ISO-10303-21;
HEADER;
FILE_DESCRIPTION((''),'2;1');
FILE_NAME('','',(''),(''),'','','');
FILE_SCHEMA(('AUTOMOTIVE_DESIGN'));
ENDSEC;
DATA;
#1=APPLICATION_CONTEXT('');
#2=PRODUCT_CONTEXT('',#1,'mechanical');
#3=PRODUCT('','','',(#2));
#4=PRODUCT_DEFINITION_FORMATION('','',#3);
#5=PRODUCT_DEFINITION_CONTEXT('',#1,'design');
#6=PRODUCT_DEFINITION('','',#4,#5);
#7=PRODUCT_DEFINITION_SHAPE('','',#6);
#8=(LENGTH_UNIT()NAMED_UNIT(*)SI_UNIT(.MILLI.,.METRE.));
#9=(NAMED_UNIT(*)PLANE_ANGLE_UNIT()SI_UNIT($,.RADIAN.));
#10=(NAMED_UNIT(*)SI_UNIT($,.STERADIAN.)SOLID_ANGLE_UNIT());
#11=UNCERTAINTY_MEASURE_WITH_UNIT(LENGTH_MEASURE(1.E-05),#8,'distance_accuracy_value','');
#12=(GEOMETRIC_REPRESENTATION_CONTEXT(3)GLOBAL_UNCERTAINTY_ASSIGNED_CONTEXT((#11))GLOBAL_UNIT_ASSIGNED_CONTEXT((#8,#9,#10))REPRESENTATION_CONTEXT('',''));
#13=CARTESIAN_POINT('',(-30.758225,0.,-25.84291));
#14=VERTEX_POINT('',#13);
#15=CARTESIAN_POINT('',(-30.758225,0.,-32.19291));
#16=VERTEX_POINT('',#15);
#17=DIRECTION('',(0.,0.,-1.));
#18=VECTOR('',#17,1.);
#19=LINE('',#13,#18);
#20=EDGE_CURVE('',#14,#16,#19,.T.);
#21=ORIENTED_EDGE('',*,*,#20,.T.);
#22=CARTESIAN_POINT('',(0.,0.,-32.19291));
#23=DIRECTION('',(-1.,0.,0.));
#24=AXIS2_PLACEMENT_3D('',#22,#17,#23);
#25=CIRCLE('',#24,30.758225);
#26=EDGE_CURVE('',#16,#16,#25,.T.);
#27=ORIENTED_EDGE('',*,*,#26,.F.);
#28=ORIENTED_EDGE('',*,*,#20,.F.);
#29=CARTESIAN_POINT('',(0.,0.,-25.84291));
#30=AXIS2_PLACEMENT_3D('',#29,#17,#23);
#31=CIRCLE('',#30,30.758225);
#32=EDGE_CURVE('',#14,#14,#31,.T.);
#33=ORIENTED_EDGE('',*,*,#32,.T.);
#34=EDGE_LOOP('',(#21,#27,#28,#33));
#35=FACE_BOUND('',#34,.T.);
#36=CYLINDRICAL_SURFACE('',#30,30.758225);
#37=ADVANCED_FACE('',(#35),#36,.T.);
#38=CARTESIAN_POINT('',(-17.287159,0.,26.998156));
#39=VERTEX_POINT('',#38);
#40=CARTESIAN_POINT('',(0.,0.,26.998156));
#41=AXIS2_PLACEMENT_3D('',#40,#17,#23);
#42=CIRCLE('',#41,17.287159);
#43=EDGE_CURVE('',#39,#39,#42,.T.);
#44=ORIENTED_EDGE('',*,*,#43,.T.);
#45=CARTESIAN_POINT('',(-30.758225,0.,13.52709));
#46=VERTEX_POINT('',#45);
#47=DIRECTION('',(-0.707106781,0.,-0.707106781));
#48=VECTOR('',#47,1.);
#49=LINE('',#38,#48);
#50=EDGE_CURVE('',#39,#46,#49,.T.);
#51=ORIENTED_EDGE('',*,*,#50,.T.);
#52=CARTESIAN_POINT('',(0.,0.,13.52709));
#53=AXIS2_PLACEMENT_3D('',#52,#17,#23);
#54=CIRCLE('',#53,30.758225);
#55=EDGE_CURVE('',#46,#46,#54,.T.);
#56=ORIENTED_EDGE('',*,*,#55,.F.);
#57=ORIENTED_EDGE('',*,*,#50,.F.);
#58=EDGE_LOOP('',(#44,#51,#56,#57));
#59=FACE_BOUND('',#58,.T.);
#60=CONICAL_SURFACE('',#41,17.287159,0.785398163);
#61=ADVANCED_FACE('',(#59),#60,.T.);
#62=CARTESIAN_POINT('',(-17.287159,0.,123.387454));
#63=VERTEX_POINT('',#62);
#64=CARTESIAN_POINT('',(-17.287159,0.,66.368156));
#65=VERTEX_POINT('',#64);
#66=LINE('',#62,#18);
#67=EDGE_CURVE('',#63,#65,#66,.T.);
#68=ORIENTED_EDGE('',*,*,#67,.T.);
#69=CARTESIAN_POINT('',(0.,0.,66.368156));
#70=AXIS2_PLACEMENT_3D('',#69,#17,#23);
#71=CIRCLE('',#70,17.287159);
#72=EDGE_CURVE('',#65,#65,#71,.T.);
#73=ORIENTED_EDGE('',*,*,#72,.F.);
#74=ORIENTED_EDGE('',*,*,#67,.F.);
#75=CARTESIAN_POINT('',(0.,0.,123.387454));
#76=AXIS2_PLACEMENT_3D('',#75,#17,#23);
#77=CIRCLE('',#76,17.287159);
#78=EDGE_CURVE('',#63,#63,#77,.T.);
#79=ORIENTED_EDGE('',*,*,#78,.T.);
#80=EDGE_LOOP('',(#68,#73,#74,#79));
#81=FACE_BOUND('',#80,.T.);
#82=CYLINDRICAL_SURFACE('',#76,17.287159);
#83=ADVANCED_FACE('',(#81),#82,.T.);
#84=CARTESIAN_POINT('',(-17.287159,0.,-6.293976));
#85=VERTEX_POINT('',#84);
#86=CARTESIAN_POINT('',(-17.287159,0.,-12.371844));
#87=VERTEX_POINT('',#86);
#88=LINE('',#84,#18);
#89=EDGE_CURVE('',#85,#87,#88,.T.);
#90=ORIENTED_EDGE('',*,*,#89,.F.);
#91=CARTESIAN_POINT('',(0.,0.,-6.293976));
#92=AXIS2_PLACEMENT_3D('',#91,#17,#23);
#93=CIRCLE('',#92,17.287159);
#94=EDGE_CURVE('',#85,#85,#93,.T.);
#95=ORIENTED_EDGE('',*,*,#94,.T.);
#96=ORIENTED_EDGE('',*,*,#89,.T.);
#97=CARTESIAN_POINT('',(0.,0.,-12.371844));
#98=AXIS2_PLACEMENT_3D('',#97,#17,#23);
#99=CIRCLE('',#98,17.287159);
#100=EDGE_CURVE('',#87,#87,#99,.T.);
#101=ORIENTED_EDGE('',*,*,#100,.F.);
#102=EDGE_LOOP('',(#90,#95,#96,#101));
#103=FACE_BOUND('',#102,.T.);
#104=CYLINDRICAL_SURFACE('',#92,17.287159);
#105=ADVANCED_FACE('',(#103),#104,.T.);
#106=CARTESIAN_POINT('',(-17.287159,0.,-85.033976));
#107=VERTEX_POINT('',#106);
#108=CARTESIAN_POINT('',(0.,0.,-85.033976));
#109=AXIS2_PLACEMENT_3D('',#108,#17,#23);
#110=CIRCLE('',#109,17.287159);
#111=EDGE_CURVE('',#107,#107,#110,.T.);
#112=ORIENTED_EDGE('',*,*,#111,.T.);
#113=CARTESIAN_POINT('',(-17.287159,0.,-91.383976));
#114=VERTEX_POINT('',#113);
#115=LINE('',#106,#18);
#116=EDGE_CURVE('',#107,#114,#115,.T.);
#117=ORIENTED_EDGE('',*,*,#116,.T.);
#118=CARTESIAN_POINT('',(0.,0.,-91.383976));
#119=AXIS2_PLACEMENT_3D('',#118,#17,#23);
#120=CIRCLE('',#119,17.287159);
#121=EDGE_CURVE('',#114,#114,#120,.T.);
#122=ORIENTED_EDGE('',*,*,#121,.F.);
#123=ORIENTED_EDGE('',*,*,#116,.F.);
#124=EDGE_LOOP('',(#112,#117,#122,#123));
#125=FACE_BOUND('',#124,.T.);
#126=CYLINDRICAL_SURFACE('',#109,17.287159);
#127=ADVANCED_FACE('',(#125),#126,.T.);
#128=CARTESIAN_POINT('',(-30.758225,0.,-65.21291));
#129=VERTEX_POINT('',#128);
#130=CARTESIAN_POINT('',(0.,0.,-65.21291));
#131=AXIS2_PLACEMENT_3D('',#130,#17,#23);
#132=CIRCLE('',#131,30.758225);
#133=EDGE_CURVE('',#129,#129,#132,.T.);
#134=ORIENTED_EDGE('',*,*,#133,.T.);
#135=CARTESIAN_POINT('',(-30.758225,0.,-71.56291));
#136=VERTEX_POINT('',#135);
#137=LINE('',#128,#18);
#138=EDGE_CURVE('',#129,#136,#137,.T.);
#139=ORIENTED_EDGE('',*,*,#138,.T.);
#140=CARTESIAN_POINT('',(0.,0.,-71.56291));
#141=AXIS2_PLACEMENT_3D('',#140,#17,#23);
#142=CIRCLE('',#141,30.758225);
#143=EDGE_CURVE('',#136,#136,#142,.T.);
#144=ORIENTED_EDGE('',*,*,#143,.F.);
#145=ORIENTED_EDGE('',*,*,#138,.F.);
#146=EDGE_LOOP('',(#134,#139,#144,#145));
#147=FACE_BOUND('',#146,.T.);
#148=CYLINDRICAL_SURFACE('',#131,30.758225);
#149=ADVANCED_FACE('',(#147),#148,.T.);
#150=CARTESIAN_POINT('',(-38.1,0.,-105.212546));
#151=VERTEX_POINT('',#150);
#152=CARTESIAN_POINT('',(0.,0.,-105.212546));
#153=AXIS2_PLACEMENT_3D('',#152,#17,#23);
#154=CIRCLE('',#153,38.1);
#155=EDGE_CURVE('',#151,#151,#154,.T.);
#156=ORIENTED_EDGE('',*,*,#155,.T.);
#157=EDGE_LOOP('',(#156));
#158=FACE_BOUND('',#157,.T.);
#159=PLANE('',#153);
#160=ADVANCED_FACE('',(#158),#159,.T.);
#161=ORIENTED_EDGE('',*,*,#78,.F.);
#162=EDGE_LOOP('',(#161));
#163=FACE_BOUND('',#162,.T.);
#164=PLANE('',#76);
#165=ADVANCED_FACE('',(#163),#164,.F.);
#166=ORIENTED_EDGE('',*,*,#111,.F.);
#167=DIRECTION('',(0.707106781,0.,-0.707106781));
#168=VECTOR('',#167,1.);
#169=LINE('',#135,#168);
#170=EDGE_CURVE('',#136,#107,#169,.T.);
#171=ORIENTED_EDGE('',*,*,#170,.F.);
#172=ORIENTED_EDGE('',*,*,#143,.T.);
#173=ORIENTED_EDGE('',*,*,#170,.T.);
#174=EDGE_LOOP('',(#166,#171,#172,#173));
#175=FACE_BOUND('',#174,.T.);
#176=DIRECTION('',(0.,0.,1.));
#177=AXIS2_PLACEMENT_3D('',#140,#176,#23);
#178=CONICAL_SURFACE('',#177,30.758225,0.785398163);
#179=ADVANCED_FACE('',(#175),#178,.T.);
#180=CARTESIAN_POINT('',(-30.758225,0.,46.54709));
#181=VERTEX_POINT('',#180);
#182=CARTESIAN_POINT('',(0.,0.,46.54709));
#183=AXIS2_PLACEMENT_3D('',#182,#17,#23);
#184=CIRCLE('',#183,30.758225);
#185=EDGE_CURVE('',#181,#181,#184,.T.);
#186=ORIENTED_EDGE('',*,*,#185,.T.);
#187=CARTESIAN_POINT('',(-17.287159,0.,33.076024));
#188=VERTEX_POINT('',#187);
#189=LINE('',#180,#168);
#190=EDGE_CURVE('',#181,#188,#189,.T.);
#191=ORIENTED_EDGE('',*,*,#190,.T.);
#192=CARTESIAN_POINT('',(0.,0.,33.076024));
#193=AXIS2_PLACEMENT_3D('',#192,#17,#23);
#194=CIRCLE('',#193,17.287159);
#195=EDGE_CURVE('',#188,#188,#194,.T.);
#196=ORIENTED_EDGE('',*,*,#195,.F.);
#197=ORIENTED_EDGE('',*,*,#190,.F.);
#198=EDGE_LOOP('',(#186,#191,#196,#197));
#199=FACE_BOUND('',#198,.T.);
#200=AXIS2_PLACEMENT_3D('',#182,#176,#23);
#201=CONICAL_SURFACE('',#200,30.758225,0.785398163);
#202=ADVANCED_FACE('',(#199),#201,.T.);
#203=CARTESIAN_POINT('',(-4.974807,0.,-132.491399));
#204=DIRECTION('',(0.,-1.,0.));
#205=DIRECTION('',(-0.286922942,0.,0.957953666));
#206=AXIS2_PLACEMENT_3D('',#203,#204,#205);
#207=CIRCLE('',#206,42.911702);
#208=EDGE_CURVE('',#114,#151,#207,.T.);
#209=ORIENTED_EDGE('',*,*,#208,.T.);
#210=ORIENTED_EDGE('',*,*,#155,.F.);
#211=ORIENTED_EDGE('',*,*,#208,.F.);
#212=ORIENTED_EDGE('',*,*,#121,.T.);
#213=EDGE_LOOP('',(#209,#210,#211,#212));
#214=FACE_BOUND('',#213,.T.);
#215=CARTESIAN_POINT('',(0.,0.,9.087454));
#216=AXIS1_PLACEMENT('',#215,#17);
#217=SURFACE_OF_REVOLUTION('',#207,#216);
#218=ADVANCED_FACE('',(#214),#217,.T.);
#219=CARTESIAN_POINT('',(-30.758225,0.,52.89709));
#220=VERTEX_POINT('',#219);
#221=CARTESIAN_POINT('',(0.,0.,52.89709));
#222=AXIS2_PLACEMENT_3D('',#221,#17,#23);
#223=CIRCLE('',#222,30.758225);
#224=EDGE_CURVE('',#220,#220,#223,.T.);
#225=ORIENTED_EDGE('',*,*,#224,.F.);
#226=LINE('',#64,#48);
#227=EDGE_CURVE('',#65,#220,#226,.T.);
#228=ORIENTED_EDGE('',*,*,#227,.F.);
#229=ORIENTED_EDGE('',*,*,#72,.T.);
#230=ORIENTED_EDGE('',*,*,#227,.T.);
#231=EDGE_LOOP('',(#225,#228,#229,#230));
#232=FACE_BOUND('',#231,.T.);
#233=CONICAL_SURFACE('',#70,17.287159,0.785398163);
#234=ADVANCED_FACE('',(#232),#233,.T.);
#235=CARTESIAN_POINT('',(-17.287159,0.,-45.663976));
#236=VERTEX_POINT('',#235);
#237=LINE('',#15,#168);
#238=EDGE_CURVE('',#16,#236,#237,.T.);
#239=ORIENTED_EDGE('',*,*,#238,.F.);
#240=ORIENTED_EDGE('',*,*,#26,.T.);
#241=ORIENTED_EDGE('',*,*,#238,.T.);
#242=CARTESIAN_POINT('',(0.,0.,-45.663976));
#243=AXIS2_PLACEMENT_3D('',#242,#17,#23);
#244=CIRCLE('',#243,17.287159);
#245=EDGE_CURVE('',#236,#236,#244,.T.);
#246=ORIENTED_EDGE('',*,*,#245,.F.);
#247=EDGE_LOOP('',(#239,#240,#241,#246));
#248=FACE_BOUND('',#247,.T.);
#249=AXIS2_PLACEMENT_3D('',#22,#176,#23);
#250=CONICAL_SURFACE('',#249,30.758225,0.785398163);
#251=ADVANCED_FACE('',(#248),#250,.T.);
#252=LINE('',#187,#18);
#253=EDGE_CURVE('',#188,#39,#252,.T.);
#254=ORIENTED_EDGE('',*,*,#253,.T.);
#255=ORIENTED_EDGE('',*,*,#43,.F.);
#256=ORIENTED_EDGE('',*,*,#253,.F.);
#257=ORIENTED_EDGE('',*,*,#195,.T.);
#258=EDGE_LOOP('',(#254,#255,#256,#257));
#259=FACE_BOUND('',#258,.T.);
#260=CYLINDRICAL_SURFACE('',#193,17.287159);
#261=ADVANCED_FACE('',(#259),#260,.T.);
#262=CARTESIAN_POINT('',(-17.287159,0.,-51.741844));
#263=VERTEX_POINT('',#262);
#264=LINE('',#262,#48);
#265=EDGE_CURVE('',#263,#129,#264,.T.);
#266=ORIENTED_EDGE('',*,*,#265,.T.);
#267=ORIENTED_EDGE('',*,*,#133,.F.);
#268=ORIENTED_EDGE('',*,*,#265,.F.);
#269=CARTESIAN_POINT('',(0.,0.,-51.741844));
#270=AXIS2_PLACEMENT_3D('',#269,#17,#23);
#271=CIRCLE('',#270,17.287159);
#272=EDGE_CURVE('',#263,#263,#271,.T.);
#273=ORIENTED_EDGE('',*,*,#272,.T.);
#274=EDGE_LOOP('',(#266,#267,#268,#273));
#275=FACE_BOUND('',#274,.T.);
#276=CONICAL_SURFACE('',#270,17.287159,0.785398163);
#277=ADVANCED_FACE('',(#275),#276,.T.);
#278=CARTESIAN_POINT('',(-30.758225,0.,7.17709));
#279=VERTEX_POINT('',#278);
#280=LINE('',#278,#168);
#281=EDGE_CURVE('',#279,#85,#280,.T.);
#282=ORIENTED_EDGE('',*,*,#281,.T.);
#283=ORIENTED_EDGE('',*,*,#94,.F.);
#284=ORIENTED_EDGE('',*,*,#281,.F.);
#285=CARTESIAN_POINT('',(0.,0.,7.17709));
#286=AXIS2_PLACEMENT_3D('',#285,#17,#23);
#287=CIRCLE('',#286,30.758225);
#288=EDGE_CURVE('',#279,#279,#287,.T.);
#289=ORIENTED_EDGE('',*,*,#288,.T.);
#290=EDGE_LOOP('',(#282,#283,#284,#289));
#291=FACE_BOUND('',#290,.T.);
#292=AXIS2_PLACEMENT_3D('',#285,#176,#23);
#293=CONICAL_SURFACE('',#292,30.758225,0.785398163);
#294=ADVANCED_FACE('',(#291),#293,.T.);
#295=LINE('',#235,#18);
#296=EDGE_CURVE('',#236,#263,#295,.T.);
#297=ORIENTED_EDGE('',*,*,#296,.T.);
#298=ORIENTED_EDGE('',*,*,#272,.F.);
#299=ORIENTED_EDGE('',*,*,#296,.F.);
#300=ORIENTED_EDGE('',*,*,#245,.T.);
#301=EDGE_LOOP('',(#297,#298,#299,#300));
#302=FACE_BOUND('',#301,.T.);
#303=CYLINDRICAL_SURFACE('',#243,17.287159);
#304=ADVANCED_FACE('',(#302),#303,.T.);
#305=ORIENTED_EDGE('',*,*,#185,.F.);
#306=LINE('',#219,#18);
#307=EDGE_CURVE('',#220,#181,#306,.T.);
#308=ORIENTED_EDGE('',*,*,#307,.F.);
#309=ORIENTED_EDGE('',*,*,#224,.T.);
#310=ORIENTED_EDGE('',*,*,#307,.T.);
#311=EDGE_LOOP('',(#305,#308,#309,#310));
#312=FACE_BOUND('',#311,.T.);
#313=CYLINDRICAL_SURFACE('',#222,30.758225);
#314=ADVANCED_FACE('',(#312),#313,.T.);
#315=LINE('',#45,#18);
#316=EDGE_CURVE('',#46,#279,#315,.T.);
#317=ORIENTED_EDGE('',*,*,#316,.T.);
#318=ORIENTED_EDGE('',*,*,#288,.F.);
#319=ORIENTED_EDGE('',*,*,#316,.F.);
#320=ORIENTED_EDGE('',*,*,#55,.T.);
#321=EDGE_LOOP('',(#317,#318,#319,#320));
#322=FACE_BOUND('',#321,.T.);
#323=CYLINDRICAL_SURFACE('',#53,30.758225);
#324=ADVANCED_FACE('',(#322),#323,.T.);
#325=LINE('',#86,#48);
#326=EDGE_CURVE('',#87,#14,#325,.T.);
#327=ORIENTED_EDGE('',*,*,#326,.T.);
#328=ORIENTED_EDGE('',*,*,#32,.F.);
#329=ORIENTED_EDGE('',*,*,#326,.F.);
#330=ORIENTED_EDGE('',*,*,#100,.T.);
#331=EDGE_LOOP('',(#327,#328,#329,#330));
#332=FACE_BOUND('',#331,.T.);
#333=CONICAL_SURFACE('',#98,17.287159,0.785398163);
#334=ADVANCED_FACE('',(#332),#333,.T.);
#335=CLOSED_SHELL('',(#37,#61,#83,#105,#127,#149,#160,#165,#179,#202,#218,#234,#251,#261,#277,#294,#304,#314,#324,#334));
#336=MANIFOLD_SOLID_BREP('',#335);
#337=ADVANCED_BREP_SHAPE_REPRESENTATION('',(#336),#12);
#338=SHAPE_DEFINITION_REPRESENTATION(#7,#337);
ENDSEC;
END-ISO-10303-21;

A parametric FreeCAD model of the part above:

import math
import FreeCAD as App
import Part
import Sketcher
Q = App.Units.Quantity

doc = App.newDocument("Part")
body = doc.addObject("PartDesign::Body", "Body")

# Sketch on XZ plane
sketch1 = body.newObject("Sketcher::SketchObject", "Sketch")
sketch1.AttachmentSupport = (doc.getObject("XZ_Plane"), [""])
sketch1.MapMode = "FlatFace"
sketch1.addGeometry([
    Part.LineSegment(App.Vector(0, -105.212546, 0), App.Vector(0, 123.387454, 0)),  # 0
    Part.LineSegment(App.Vector(0, 123.387454, 0), App.Vector(-17.287159, 123.387454, 0)),  # 1
    Part.LineSegment(App.Vector(-17.287159, 123.387454, 0), App.Vector(-17.287159, 66.368156, 0)),  # 2
    Part.LineSegment(App.Vector(-17.287159, 66.368156, 0), App.Vector(-30.758225, 52.89709, 0)),  # 3
    Part.LineSegment(App.Vector(-30.758225, 52.89709, 0), App.Vector(-30.758225, 46.54709, 0)),  # 4
    Part.LineSegment(App.Vector(-30.758225, 46.54709, 0), App.Vector(-17.287159, 33.076024, 0)),  # 5
    Part.LineSegment(App.Vector(-17.287159, 33.076024, 0), App.Vector(-17.287159, 26.998156, 0)),  # 6
    Part.LineSegment(App.Vector(-17.287159, 26.998156, 0), App.Vector(-30.758225, 13.52709, 0)),  # 7
    Part.LineSegment(App.Vector(-30.758225, 13.52709, 0), App.Vector(-30.758225, 7.17709, 0)),  # 8
    Part.LineSegment(App.Vector(-30.758225, 7.17709, 0), App.Vector(-17.287159, -6.293976, 0)),  # 9
    Part.LineSegment(App.Vector(-17.287159, -6.293976, 0), App.Vector(-17.287159, -12.371844, 0)),  # 10
    Part.LineSegment(App.Vector(-17.287159, -12.371844, 0), App.Vector(-30.758225, -25.84291, 0)),  # 11
    Part.LineSegment(App.Vector(-30.758225, -25.84291, 0), App.Vector(-30.758225, -32.19291, 0)),  # 12
    Part.LineSegment(App.Vector(-30.758225, -32.19291, 0), App.Vector(-17.287159, -45.663976, 0)),  # 13
    Part.LineSegment(App.Vector(-17.287159, -45.663976, 0), App.Vector(-17.287159, -51.741844, 0)),  # 14
    Part.LineSegment(App.Vector(-17.287159, -51.741844, 0), App.Vector(-30.758225, -65.21291, 0)),  # 15
    Part.LineSegment(App.Vector(-30.758225, -65.21291, 0), App.Vector(-30.758225, -71.56291, 0)),  # 16
    Part.LineSegment(App.Vector(-30.758225, -71.56291, 0), App.Vector(-17.287159, -85.033976, 0)),  # 17
    Part.LineSegment(App.Vector(-17.287159, -85.033976, 0), App.Vector(-17.287159, -91.383976, 0)),  # 18
    Part.ArcOfCircle(Part.Circle(App.Vector(-4.974807, -132.491399, 0), App.Vector(0, 0, 1), 42.911702), math.radians(106.673826), math.radians(140.52828)),  # 19
    Part.LineSegment(App.Vector(-38.1, -105.212546, 0), App.Vector(0, -105.212546, 0)),  # 20
], False)
sketch1.addConstraint([
    Sketcher.Constraint("Coincident", 0, 2, 1, 1),
    Sketcher.Constraint("Coincident", 1, 2, 2, 1),
    Sketcher.Constraint("Coincident", 2, 2, 3, 1),
    Sketcher.Constraint("Coincident", 3, 2, 4, 1),
    Sketcher.Constraint("Coincident", 4, 2, 5, 1),
    Sketcher.Constraint("Coincident", 5, 2, 6, 1),
    Sketcher.Constraint("Coincident", 6, 2, 7, 1),
    Sketcher.Constraint("Coincident", 7, 2, 8, 1),
    Sketcher.Constraint("Coincident", 8, 2, 9, 1),
    Sketcher.Constraint("Coincident", 9, 2, 10, 1),
    Sketcher.Constraint("Coincident", 10, 2, 11, 1),
    Sketcher.Constraint("Coincident", 11, 2, 12, 1),
    Sketcher.Constraint("Coincident", 12, 2, 13, 1),
    Sketcher.Constraint("Coincident", 13, 2, 14, 1),
    Sketcher.Constraint("Coincident", 14, 2, 15, 1),
    Sketcher.Constraint("Coincident", 15, 2, 16, 1),
    Sketcher.Constraint("Coincident", 16, 2, 17, 1),
    Sketcher.Constraint("Coincident", 17, 2, 18, 1),
    Sketcher.Constraint("Coincident", 18, 2, 19, 1),
    Sketcher.Constraint("Coincident", 19, 2, 20, 1),
    Sketcher.Constraint("Coincident", 20, 2, 0, 1),
    Sketcher.Constraint("Vertical", 0),
    Sketcher.Constraint("Horizontal", 1),
    Sketcher.Constraint("Vertical", 2),
    Sketcher.Constraint("Vertical", 4),
    Sketcher.Constraint("Vertical", 6),
    Sketcher.Constraint("Vertical", 8),
    Sketcher.Constraint("Vertical", 10),
    Sketcher.Constraint("Vertical", 12),
    Sketcher.Constraint("Vertical", 14),
    Sketcher.Constraint("Vertical", 16),
    Sketcher.Constraint("Vertical", 18),
    Sketcher.Constraint("Horizontal", 20),
    Sketcher.Constraint("PointOnObject", 0, 2, -2),
    Sketcher.Constraint("Perpendicular", 3, 5),
    Sketcher.Constraint("Perpendicular", 5, 7),
    Sketcher.Constraint("Perpendicular", 7, 9),
    Sketcher.Constraint("Perpendicular", 9, 11),
    Sketcher.Constraint("Perpendicular", 11, 13),
    Sketcher.Constraint("Perpendicular", 13, 15),
    Sketcher.Constraint("Perpendicular", 15, 17),
    Sketcher.Constraint("Vertical", 2, 2, 5, 2),
    Sketcher.Constraint("Vertical", 4, 2, 7, 2),
    Sketcher.Constraint("Vertical", 6, 2, 9, 2),
    Sketcher.Constraint("Vertical", 8, 2, 11, 2),
    Sketcher.Constraint("Vertical", 10, 2, 13, 2),
    Sketcher.Constraint("Vertical", 12, 2, 15, 2),
    Sketcher.Constraint("Vertical", 14, 2, 17, 2),
    Sketcher.Constraint("Equal", 4, 8),
    Sketcher.Constraint("Equal", 6, 10),
    Sketcher.Constraint("Equal", 8, 12),
    Sketcher.Constraint("Equal", 10, 14),
    Sketcher.Constraint("Equal", 12, 16),
    Sketcher.Constraint("Equal", 16, 18),
    Sketcher.Constraint("Equal", 3, 5),
    Sketcher.Constraint("DistanceY", 0, 1, 0, 2, Q("9 in")),
    Sketcher.Constraint("DistanceX", 20, 1, 20, 2, Q("1.5 in")),
    Sketcher.Constraint("DistanceY", 4, 2, 4, 1, Q("0.25 in")),
    Sketcher.Constraint("DistanceY", 7, 2, 4, 2, Q("1.3 in")),
    Sketcher.Constraint("DistanceY", 2, 2, 2, 1, Q("57.019298 mm")),
    Sketcher.Constraint("Radius", 19, Q("42.911702 mm")),
    Sketcher.Constraint("DistanceX", 1, 2, 1, 1, Q("17.287159 mm")),
    Sketcher.Constraint("DistanceY", 14, 2, 14, 1, Q("6.077868 mm")),
    Sketcher.Constraint("DistanceY", 19, 3, -1, 1, Q("132.491399 mm")),
])
revolution = body.newObject("PartDesign::Revolution", "Revolution")
revolution.Profile = sketch1
revolution.ReferenceAxis = (sketch1, ["V_Axis"])
revolution.Angle = 360

doc.recompute()
